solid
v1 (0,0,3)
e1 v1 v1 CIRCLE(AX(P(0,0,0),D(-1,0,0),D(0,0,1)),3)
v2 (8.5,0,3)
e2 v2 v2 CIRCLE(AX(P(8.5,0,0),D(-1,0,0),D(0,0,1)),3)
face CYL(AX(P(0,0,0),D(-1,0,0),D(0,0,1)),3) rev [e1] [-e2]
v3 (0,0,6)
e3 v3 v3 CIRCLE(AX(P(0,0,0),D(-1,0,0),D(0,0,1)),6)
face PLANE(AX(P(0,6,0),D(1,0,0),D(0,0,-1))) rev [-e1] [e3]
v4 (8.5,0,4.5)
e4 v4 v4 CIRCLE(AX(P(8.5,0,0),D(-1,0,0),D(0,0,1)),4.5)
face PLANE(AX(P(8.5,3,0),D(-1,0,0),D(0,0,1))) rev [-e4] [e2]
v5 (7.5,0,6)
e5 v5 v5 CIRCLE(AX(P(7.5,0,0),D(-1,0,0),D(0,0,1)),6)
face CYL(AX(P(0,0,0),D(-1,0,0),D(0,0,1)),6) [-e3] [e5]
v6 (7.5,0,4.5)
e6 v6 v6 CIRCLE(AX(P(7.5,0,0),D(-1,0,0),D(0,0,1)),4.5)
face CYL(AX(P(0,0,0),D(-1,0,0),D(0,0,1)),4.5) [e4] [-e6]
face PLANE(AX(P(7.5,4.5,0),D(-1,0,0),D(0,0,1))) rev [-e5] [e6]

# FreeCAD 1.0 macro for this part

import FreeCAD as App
import Part
import Sketcher
from FreeCAD import Vector
Q = App.Units.Quantity


def add_polygon(sketch, points):
    """Adds a closed chain of lines whose ends are joined by coincident constraints."""
    first, n = sketch.GeometryCount, len(points)
    for a, b in zip(points, points[1:] + points[:1]):
        sketch.addGeometry(Part.LineSegment(App.Vector(*a, 0), App.Vector(*b, 0)), False)
    for i in range(n):
        sketch.addConstraint(Sketcher.Constraint("Coincident", first + i, 2, first + (i + 1) % n, 1))

doc = App.newDocument("Part")
params = doc.addObject("Spreadsheet::Sheet", "Params")
for row, (alias, value) in enumerate([
    ("sketch1_width", "1 mm"),
    ("sketch1_height", "3 mm"),
    ("sketch1_width2", "8.5 mm"),
    ("revolution_angle", "360 deg"),
], start=1):
    params.set(f"A{row}", alias)
    params.set(f"B{row}", "=" + value)
    params.setAlias(f"B{row}", alias)

body = doc.addObject("PartDesign::Body", "Body")

sketch1 = body.newObject("Sketcher::SketchObject", "Sketch")
sketch1.AttachmentSupport = (doc.getObject("XY_Plane"), [""])
sketch1.MapMode = "FlatFace"
add_polygon(sketch1, [(0, 6), (0, 3), (8.5, 3), (8.5, 4.5), (7.5, 4.5), (7.5, 6)])
sketch1.addConstraint([
    Sketcher.Constraint("Vertical", 0),
    Sketcher.Constraint("Horizontal", 1),
    Sketcher.Constraint("Vertical", 2),
    Sketcher.Constraint("Horizontal", 3),
    Sketcher.Constraint("Vertical", 4),
    Sketcher.Constraint("Horizontal", 5),
    Sketcher.Constraint("PointOnObject", 0, 2, -2),
    Sketcher.Constraint("Equal", 2, 4),
    Sketcher.Constraint("DistanceX", 3, 2, 3, 1, Q("1 mm")),
    Sketcher.Constraint("DistanceY", 0, 2, 0, 1, Q("3 mm")),
    Sketcher.Constraint("DistanceX", 1, 1, 1, 2, Q("8.5 mm")),
    Sketcher.Constraint("DistanceY", -1, 1, 0, 2, Q("3 mm")),
])
sketch1.setExpression("Constraints[14]", "Params.sketch1_width")
sketch1.setExpression("Constraints[15]", "Params.sketch1_height")
sketch1.setExpression("Constraints[16]", "Params.sketch1_width2")
revolution = body.newObject("PartDesign::Revolution", "Revolution")
revolution.Profile = sketch1
revolution.ReferenceAxis = (sketch1, ["H_Axis"])
revolution.setExpression("Angle", "Params.revolution_angle")

doc.recompute()
